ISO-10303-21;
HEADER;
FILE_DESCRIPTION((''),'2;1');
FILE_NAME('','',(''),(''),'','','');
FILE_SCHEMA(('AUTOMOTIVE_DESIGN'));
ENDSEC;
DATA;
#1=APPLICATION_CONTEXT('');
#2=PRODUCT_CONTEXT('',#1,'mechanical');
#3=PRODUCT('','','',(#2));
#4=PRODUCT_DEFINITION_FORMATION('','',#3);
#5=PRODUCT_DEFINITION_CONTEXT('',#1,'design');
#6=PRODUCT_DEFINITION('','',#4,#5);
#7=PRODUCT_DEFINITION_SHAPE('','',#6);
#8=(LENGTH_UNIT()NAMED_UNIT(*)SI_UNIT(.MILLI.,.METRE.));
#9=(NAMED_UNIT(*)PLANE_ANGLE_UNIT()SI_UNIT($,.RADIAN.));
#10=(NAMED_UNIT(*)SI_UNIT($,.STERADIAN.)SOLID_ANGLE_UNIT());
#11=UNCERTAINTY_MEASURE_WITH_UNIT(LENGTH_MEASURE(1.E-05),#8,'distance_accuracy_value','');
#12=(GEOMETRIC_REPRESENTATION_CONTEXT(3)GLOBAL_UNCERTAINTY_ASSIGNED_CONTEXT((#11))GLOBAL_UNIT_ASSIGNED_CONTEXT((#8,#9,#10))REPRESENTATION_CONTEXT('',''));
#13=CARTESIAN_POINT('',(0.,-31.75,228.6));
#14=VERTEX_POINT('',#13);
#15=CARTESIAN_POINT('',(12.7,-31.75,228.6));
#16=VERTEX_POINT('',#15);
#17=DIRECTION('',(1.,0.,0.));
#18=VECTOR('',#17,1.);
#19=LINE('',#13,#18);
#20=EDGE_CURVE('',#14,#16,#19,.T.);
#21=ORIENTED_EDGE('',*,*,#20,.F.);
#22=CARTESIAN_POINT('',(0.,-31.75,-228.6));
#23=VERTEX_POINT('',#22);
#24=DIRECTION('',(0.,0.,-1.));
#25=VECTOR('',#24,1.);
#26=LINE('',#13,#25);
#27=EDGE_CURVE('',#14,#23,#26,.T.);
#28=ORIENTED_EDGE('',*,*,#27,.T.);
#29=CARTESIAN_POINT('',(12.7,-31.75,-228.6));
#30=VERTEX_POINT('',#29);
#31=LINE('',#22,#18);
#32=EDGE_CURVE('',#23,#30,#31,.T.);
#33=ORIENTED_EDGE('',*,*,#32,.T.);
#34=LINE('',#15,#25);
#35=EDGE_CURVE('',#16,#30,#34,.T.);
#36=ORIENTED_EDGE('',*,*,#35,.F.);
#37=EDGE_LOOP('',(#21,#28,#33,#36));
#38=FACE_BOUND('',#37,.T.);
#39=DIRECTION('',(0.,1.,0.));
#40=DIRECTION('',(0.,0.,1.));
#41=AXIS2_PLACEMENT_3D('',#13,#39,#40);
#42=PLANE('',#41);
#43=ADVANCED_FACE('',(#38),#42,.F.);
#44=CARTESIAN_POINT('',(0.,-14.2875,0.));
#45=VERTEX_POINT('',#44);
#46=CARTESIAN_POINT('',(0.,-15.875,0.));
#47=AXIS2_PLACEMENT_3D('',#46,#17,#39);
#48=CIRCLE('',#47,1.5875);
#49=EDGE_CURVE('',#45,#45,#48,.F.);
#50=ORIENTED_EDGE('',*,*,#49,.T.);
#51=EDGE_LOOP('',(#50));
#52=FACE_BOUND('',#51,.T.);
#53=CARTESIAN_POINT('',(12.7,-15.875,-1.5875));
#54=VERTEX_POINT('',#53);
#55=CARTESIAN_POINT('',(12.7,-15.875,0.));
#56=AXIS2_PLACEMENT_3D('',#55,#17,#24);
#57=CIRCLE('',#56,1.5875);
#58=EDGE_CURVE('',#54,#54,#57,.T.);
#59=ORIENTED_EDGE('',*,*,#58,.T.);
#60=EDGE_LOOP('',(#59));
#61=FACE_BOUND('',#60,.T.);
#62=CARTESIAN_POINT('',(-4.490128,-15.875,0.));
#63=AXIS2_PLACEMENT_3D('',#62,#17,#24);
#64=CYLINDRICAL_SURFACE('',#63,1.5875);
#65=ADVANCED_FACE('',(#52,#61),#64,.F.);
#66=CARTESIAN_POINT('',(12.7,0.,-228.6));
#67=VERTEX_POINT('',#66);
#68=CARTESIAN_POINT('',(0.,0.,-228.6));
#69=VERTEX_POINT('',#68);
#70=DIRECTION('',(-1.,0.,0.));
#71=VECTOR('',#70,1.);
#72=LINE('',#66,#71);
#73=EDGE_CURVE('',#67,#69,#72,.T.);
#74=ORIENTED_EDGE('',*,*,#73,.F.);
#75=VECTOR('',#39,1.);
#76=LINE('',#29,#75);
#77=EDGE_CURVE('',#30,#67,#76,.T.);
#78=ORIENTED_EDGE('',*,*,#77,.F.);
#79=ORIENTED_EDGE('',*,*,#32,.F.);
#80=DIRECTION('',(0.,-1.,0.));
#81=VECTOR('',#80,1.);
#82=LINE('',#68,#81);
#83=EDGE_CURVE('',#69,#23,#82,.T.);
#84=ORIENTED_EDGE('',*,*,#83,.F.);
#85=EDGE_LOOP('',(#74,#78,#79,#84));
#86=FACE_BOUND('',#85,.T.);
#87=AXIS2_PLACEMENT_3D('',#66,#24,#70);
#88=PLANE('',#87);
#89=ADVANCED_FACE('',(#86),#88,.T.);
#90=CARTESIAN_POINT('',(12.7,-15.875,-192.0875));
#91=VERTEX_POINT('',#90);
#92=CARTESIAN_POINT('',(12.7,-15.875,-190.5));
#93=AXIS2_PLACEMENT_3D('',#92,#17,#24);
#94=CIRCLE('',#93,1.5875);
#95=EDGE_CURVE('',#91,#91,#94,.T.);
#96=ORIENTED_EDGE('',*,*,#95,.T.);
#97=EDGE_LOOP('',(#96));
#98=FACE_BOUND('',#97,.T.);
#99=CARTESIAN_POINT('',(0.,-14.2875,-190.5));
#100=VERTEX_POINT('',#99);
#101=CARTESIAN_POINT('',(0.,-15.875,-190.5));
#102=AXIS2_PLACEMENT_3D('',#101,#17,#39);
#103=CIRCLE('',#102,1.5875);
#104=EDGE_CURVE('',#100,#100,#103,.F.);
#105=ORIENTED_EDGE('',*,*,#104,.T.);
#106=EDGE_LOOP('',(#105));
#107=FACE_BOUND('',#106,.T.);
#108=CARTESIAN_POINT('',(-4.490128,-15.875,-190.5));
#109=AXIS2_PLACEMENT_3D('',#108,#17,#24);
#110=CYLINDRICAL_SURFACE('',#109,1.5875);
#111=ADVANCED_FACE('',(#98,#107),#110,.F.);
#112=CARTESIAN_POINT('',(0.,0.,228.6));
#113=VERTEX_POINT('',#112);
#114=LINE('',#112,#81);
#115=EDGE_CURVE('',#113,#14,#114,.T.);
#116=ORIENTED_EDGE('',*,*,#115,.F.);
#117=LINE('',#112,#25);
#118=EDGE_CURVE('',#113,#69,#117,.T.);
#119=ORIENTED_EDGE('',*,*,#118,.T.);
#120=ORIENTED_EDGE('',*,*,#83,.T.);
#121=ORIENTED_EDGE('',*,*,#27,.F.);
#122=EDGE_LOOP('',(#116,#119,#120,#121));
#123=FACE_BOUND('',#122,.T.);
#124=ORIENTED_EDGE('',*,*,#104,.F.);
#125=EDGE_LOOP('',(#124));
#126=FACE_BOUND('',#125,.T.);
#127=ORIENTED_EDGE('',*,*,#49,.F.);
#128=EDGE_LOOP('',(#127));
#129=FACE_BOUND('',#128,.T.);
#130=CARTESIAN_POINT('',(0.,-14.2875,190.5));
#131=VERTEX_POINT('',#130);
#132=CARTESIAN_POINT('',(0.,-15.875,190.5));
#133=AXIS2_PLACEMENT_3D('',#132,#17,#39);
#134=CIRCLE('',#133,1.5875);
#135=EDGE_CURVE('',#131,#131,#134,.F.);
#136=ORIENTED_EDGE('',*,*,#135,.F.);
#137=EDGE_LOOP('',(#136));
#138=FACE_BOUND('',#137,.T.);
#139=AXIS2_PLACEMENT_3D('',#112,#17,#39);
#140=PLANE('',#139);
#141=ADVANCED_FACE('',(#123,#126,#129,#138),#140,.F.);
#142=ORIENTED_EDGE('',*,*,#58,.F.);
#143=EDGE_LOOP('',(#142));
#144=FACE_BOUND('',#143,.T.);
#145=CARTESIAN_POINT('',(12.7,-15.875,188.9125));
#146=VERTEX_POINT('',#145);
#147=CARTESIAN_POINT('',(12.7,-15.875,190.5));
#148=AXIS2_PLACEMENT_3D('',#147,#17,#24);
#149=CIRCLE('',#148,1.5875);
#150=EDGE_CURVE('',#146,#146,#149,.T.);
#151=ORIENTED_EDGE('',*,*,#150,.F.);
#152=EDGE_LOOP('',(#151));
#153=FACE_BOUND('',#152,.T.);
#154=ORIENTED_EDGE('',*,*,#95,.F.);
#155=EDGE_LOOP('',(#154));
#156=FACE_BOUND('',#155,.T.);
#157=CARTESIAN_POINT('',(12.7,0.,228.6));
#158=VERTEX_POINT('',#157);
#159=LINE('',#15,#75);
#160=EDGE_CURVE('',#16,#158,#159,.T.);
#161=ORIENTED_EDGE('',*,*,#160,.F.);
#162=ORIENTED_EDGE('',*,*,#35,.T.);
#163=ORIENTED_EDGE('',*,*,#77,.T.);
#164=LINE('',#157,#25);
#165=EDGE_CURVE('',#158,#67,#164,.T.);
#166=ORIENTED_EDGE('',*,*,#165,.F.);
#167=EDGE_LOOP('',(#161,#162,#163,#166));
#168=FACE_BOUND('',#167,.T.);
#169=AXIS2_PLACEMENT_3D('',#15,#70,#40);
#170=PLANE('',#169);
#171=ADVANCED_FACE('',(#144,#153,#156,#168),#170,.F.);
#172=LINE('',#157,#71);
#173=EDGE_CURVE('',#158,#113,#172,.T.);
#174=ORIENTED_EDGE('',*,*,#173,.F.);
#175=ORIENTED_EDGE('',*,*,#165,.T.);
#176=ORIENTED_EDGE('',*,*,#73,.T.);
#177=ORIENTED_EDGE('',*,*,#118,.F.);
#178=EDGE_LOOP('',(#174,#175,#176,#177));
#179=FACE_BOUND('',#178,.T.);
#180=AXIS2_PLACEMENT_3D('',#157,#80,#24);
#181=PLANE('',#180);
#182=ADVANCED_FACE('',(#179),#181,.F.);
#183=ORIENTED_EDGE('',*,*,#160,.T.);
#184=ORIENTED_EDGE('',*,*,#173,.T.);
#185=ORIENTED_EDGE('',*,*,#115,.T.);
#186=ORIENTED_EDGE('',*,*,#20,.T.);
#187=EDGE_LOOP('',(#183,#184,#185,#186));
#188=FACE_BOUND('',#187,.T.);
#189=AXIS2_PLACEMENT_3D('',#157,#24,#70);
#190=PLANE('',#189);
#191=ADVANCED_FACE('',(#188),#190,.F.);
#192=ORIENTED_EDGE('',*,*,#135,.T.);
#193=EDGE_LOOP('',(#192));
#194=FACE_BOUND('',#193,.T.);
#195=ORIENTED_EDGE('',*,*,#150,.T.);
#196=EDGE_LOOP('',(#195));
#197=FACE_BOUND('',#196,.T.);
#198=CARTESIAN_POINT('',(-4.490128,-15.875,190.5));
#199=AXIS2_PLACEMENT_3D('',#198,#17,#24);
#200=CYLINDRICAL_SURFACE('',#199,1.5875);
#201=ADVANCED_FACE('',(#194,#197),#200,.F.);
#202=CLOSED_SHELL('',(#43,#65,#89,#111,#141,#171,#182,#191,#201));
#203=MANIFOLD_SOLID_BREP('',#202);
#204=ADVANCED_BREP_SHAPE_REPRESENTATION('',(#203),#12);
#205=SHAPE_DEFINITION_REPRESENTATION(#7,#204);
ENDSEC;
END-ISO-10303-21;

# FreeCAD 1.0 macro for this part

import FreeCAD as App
import Part
import Sketcher

V = App.Vector
Q = App.Units.Quantity

doc = App.newDocument("Part")
params = doc.addObject("Spreadsheet::Sheet", "Params")
for row, (alias, value) in enumerate([
    ("sketch1_width", "0.5 in"),
    ("sketch1_height", "1.25 in"),
    ("pad1_length", "18 in"),
    ("sketch2_diameter", "0.125 in"),
    ("pocket1_length", "0.5 in"),
], start=1):
    params.set(f"A{row}", alias)
    params.set(f"B{row}", "=" + value)
    params.setAlias(f"B{row}", alias)

body = doc.addObject("PartDesign::Body", "Body")

# Sketch on XY plane
sketch1 = body.newObject("Sketcher::SketchObject", "Sketch")
sketch1.AttachmentSupport = (doc.getObject("XY_Plane"), [""])
sketch1.MapMode = "FlatFace"
sketch1.addGeometry([
    Part.LineSegment(V(0, 0, 0), V(0, -32, 0)),
    Part.LineSegment(V(0, -32, 0), V(13, -32, 0)),
    Part.LineSegment(V(13, -32, 0), V(13, 0, 0)),
    Part.LineSegment(V(13, 0, 0), V(0, 0, 0)),
], False)
sketch1.addConstraint([
    Sketcher.Constraint("Coincident", 0, 2, 1, 1),
    Sketcher.Constraint("Coincident", 1, 2, 2, 1),
    Sketcher.Constraint("Coincident", 2, 2, 3, 1),
    Sketcher.Constraint("Coincident", 3, 2, 0, 1),
    Sketcher.Constraint("Vertical", 0),
    Sketcher.Constraint("Horizontal", 1),
    Sketcher.Constraint("Vertical", 2),
    Sketcher.Constraint("Horizontal", 3),
    Sketcher.Constraint("Coincident", 3, 2, -1, 1),
    Sketcher.Constraint("DistanceX", 1, 1, 1, 2, Q("0.5 in")),
    Sketcher.Constraint("DistanceY", 0, 2, 0, 1, Q("1.25 in")),
])
sketch1.setExpression("Constraints[9]", "Params.sketch1_width")
sketch1.setExpression("Constraints[10]", "Params.sketch1_height")
pad1 = body.newObject("PartDesign::Pad", "Pad")
pad1.Profile = sketch1
pad1.setExpression("Length", "Params.pad1_length")
pad1.Midplane = True

# Sketch on YZ plane
sketch2 = body.newObject("Sketcher::SketchObject", "Sketch001")
sketch2.AttachmentSupport = (doc.getObject("YZ_Plane"), [""])
sketch2.MapMode = "FlatFace"
sketch2.AttachmentOffset = App.Placement(V(0, 0, 0.5 * 25.4), App.Rotation())
sketch2.addGeometry([
    Part.Circle(V(-15.9, 190.5, 0), V(0, 0, 1), 1.6),
    Part.Circle(V(-15.9, -190.5, 0), V(0, 0, 1), 1.6),
    Part.Circle(V(-15.9, 0, 0), V(0, 0, 1), 1.6),
], False)
sketch2.addConstraint([
    Sketcher.Constraint("Equal", 0, 1),
    Sketcher.Constraint("Equal", 1, 2),
    Sketcher.Constraint("Symmetric", 0, 3, 1, 3, -1),
    Sketcher.Constraint("PointOnObject", 2, 3, -1),
    Sketcher.Constraint("Vertical", 1, 3, 2, 3),
    Sketcher.Constraint("Diameter", 0, Q("0.125 in")),
    Sketcher.Constraint("DistanceY", 1, 3, 0, 3, Q("15 in")),
    Sketcher.Constraint("DistanceX", 0, 3, -1, 1, Q("0.625 in")),
])
sketch2.setExpression("Constraints[5]", "Params.sketch2_diameter")
pocket1 = body.newObject("PartDesign::Pocket", "Pocket")
pocket1.Profile = sketch2
pocket1.setExpression("Length", "Params.pocket1_length")

doc.recompute()
